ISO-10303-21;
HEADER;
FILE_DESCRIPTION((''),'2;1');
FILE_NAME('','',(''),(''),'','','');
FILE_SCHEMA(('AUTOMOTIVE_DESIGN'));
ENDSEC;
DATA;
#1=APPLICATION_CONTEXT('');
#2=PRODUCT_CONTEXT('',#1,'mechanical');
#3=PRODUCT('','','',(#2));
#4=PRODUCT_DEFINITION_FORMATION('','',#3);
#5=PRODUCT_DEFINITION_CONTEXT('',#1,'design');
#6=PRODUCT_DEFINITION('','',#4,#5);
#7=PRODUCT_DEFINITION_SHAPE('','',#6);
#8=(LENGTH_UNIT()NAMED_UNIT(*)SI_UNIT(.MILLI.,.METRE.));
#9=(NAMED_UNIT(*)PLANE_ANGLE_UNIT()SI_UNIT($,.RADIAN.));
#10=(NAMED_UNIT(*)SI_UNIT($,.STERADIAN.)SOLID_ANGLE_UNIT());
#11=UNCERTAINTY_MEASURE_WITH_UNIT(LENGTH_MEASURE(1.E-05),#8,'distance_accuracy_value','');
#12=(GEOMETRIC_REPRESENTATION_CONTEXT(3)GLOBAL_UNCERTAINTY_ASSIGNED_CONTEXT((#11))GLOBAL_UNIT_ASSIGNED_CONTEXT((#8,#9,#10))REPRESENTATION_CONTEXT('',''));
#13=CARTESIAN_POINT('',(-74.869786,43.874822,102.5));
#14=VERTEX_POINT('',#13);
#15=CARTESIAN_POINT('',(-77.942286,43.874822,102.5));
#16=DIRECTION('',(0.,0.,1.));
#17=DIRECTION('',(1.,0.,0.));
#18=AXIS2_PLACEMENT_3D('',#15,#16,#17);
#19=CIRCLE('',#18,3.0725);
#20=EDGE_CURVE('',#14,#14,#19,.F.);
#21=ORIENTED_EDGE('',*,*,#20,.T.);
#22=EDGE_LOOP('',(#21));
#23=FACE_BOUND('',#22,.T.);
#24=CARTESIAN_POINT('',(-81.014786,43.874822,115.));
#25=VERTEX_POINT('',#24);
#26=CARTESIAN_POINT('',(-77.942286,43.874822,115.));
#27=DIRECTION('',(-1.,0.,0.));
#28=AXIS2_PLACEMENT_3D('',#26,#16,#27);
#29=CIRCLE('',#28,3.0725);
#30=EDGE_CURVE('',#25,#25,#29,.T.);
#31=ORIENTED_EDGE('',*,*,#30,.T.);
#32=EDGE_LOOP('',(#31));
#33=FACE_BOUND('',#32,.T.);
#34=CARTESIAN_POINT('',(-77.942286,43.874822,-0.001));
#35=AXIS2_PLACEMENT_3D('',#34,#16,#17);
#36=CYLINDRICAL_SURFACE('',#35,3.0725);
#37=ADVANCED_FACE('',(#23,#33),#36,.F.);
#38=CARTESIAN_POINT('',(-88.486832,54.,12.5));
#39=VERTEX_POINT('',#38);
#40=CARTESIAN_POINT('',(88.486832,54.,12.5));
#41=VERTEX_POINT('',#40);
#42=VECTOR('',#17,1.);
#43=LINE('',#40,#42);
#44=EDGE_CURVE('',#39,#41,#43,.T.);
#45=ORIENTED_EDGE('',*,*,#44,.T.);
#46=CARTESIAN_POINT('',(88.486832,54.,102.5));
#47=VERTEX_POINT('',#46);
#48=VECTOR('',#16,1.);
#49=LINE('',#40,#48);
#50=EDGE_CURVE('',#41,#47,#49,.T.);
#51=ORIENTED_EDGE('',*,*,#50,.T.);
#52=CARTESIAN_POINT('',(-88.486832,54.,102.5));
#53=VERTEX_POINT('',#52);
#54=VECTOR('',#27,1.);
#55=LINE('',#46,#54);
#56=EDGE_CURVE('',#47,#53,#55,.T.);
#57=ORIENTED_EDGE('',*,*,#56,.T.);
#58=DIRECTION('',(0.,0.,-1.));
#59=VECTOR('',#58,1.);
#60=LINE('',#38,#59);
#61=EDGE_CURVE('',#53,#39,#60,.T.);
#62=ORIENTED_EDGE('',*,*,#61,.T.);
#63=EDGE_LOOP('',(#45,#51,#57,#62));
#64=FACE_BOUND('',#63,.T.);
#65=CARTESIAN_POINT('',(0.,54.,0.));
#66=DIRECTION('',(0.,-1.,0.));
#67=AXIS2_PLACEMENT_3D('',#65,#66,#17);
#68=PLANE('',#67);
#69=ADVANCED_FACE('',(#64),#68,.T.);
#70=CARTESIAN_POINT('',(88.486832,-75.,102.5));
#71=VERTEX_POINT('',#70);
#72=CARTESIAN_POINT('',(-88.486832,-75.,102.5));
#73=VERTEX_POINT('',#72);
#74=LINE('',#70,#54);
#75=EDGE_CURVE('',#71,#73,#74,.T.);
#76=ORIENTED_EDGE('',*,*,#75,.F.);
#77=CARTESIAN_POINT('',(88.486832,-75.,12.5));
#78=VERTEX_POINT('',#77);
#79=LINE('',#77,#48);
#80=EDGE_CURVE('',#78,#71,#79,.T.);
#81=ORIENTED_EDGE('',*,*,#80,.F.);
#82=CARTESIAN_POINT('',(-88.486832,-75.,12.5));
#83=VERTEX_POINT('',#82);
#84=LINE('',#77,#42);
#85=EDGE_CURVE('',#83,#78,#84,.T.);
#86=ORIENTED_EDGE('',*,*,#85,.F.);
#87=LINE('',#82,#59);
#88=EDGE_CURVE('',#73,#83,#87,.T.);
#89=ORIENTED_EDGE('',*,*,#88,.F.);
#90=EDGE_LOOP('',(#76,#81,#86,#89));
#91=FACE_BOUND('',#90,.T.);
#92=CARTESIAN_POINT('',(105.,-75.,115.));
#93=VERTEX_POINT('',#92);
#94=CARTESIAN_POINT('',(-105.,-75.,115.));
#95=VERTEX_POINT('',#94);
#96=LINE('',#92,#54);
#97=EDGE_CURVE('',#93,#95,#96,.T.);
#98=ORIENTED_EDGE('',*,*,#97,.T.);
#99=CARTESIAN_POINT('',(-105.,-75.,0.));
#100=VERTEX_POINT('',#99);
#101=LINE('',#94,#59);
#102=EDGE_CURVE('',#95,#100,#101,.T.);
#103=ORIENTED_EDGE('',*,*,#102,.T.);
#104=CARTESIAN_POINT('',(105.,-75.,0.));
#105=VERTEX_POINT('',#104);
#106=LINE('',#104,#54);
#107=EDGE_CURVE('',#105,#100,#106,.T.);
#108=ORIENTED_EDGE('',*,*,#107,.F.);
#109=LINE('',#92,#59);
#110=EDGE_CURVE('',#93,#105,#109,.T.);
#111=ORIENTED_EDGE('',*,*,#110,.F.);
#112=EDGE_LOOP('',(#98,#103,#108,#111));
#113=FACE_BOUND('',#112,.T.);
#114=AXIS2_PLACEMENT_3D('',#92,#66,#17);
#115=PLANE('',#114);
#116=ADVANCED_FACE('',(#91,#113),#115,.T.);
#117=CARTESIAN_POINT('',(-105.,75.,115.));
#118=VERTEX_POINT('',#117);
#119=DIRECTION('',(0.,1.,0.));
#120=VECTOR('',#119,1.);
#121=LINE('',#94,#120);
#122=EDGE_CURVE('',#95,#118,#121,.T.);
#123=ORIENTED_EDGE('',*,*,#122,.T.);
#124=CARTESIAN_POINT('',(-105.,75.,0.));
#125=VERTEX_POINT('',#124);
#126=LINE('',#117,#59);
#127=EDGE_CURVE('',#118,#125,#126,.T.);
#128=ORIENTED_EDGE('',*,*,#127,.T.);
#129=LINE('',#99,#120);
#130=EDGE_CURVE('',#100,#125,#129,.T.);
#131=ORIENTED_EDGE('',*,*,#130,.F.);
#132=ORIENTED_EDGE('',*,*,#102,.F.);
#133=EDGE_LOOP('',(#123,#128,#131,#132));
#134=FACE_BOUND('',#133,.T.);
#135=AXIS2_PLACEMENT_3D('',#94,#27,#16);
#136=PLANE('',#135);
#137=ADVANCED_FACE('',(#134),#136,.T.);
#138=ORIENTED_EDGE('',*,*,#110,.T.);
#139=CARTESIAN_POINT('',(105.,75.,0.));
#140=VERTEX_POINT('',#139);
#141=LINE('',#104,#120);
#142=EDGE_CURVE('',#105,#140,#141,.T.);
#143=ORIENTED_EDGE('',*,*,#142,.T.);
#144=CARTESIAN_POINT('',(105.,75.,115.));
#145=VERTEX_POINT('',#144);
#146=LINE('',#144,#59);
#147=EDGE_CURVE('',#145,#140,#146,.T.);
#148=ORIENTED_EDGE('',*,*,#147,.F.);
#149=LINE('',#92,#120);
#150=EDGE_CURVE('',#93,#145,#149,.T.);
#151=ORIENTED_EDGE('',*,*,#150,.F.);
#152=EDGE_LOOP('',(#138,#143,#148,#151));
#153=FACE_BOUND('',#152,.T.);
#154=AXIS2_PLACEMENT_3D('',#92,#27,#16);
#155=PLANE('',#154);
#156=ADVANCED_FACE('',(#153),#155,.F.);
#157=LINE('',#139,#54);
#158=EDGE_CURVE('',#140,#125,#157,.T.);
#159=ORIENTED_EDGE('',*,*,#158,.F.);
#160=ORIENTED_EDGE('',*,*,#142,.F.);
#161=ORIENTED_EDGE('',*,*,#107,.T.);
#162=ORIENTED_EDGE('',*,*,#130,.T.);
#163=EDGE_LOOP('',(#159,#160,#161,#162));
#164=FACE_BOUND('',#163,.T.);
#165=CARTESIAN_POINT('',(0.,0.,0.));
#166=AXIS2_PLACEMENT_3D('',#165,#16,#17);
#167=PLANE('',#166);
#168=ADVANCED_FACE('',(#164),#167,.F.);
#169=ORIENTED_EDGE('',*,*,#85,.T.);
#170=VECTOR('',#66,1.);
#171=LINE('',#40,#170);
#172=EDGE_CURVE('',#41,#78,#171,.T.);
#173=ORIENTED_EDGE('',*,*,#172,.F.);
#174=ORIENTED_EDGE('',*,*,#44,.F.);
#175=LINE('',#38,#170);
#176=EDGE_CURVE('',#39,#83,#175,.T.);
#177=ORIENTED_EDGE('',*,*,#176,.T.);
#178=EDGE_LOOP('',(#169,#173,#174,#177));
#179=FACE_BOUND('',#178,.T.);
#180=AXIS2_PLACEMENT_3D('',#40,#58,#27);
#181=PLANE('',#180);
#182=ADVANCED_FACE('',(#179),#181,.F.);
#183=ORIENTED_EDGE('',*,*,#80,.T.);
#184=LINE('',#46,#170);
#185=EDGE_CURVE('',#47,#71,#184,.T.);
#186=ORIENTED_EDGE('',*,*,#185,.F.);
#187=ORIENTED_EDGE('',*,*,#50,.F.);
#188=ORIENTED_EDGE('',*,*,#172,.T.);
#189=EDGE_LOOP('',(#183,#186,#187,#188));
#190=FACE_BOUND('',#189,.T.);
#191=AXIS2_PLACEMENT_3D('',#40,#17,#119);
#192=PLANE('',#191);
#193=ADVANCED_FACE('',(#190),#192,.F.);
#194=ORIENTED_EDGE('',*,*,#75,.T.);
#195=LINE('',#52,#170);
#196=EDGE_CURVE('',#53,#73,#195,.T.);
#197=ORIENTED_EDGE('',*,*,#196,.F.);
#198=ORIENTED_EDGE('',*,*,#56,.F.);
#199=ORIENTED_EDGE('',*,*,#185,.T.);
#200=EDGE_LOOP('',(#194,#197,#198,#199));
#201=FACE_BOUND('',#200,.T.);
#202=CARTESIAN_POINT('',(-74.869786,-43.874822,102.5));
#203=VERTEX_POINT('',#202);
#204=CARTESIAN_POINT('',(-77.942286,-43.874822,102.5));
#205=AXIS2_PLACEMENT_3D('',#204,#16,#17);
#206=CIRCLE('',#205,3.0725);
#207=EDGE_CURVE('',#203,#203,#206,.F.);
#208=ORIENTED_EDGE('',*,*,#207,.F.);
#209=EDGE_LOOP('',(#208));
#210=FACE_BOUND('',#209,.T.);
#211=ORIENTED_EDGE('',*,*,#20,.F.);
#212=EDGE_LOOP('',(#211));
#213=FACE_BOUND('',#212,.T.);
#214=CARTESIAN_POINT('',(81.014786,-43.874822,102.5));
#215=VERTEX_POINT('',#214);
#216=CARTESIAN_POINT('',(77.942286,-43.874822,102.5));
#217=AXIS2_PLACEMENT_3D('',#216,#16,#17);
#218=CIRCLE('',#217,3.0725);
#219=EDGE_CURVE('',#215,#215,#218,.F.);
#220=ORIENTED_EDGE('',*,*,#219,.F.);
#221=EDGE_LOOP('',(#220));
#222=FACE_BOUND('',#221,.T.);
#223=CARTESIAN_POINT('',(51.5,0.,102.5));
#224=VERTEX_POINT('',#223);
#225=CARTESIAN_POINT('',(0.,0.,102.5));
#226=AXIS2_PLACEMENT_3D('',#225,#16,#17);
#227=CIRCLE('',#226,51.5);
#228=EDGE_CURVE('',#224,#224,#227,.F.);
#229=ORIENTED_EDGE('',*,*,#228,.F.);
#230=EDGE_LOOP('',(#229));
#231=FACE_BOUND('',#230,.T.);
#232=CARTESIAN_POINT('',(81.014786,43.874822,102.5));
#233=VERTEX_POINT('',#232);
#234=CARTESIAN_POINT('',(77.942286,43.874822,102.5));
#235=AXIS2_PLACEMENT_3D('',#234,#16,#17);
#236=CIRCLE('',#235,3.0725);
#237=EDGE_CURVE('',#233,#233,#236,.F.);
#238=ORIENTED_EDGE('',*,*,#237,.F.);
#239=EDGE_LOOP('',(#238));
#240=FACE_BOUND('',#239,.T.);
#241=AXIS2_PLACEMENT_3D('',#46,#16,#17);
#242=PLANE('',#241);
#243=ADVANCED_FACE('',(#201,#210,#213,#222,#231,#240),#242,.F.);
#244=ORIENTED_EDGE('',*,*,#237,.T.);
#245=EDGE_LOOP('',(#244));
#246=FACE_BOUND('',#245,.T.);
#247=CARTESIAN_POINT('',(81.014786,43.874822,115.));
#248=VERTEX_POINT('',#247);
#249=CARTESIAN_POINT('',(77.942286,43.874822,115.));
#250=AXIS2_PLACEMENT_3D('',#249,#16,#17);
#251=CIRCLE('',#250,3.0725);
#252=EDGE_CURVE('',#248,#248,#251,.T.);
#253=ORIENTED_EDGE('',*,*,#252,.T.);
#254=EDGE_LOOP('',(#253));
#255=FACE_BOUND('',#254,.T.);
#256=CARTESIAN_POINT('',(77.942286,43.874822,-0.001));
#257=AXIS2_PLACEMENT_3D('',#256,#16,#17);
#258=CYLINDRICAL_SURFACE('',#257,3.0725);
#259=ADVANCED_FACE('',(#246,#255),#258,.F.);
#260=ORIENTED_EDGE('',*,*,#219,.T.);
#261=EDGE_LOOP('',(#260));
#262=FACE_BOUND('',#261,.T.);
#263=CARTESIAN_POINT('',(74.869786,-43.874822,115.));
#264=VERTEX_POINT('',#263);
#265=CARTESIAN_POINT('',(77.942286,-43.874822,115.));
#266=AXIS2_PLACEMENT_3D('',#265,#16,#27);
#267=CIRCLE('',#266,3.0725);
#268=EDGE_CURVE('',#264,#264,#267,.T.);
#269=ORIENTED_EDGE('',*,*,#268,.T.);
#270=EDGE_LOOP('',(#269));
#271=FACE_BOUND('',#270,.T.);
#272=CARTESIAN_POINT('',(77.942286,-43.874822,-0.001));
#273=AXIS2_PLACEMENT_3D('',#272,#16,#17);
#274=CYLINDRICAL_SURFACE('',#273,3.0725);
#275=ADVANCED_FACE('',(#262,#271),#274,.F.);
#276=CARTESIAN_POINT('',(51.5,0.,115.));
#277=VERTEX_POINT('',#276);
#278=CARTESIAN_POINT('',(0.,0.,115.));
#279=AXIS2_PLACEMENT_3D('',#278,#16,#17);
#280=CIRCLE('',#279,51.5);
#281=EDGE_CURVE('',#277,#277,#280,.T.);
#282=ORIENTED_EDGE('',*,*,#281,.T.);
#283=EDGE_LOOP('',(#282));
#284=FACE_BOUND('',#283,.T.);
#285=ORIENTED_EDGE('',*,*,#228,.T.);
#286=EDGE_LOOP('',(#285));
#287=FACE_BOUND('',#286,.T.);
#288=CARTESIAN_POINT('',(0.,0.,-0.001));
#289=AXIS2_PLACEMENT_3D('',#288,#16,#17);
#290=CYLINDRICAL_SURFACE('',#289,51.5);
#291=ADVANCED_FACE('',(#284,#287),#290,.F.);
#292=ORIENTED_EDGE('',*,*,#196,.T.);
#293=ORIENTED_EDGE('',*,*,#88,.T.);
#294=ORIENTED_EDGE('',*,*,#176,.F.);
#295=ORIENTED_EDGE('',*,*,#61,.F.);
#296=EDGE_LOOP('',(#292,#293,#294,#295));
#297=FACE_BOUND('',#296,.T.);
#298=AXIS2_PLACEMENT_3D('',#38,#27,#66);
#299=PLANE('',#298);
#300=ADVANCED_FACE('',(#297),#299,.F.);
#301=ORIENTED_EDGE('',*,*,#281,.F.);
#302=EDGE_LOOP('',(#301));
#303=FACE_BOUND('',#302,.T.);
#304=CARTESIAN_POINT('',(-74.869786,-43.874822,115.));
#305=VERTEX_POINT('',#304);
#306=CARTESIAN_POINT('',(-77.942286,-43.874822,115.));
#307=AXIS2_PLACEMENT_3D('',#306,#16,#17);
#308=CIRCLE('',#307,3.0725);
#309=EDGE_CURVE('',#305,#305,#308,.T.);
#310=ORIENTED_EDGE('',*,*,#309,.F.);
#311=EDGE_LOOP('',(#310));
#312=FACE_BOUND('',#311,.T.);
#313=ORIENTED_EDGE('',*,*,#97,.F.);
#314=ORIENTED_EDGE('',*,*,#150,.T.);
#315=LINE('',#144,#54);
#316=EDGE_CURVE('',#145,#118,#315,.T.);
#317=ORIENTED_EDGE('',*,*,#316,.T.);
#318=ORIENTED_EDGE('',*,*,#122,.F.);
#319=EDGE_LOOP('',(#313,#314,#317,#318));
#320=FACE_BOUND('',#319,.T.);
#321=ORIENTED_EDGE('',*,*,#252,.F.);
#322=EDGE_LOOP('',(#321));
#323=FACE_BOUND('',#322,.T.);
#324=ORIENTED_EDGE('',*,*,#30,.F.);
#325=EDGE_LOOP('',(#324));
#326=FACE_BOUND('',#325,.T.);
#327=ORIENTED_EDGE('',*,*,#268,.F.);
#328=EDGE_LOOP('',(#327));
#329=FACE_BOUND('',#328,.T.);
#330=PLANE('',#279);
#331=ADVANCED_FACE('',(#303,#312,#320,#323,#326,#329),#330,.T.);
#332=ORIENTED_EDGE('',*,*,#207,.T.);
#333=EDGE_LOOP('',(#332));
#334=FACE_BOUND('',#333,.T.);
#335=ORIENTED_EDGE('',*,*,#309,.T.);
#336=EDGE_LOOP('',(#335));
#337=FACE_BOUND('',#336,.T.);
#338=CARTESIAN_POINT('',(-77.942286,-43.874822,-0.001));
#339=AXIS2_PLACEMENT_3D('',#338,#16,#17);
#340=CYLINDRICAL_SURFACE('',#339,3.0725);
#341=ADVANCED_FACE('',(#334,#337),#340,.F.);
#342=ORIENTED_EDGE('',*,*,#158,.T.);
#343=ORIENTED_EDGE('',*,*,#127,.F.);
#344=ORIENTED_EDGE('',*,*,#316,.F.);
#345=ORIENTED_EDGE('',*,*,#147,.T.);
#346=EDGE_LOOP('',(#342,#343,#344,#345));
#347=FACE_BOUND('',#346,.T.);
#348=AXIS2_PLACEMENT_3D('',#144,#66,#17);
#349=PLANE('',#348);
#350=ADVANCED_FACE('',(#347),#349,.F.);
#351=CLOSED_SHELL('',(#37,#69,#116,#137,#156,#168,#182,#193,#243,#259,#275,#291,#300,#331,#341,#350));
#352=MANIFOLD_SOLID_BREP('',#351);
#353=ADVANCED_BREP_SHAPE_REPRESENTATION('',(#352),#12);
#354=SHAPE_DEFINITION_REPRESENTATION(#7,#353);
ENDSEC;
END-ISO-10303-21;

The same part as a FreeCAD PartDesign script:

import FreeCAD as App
import Part
import Sketcher

V = App.Vector


def add_polygon(sketch, points):
    """Adds a closed chain of lines whose ends are joined by coincident constraints."""
    first, n = sketch.GeometryCount, len(points)
    for a, b in zip(points, points[1:] + points[:1]):
        sketch.addGeometry(Part.LineSegment(App.Vector(*a, 0), App.Vector(*b, 0)), False)
    for i in range(n):
        sketch.addConstraint(Sketcher.Constraint("Coincident", first + i, 2, first + (i + 1) % n, 1))

doc = App.newDocument("Part")
body = doc.addObject("PartDesign::Body", "Body")

# Sketch on XY plane
sketch1 = body.newObject("Sketcher::SketchObject", "Sketch")
sketch1.AttachmentSupport = (doc.getObject("XY_Plane"), [""])
sketch1.MapMode = "FlatFace"
add_polygon(sketch1, [(-105, 75), (-105, -75), (105, -75), (105, 75)])  # lines 0-3
sketch1.addConstraint([
    Sketcher.Constraint("Vertical", 0),
    Sketcher.Constraint("Horizontal", 1),
    Sketcher.Constraint("Vertical", 2),
    Sketcher.Constraint("Horizontal", 3),
    Sketcher.Constraint("Symmetric", 0, 2, 2, 2, -1, 1),
    Sketcher.Constraint("DistanceX", 1, 1, 1, 2, 210.0),
    Sketcher.Constraint("DistanceY", 0, 2, 0, 1, 150.0),
])
pad1 = body.newObject("PartDesign::Pad", "Pad")
pad1.Profile = sketch1
pad1.Length = 115

# Sketch on XZ plane
sketch2 = body.newObject("Sketcher::SketchObject", "Sketch001")
sketch2.AttachmentSupport = (doc.getObject("XZ_Plane"), [""])
sketch2.MapMode = "FlatFace"
sketch2.AttachmentOffset = App.Placement(V(0, 0, 75), App.Rotation())
add_polygon(sketch2, [(-88, 102), (-88, 12), (88, 12), (88, 102)])  # lines 0-3
sketch2.addConstraint([
    Sketcher.Constraint("Vertical", 0),
    Sketcher.Constraint("Horizontal", 1),
    Sketcher.Constraint("Vertical", 2),
    Sketcher.Constraint("Horizontal", 3),
    Sketcher.Constraint("DistanceY", 0, 2, 0, 1, 90.0),
    Sketcher.Constraint("DistanceY", -1, 1, 0, 2, 12.5),
    Sketcher.Constraint("DistanceX", 1, 1, 1, 2, 176.973663),
    Sketcher.Constraint("DistanceX", 0, 2, -1, 1, 88.486832),
])
pocket1 = body.newObject("PartDesign::Pocket", "Pocket")
pocket1.Profile = sketch2
pocket1.Length = 129

# Sketch on XY plane
sketch3 = body.newObject("Sketcher::SketchObject", "Sketch002")
sketch3.AttachmentSupport = (doc.getObject("XY_Plane"), [""])
sketch3.MapMode = "FlatFace"
sketch3.AttachmentOffset = App.Placement(V(0, 0, 115), App.Rotation())
sketch3.addGeometry(Part.Circle(V(77.9, 43.9, 0), V(0, 0, 1), 3.1), False)
sketch3.addConstraint([
    Sketcher.Constraint("Diameter", 0, 6.145),
    Sketcher.Constraint("DistanceY", -1, 1, 0, 3, 43.874822),
    Sketcher.Constraint("DistanceX", -1, 1, 0, 3, 77.942286),
])
pocket2 = body.newObject("PartDesign::Pocket", "Pocket001")
pocket2.Profile = sketch3
pocket2.Type = "UpToFirst"

# Sketch on XY plane
sketch4 = body.newObject("Sketcher::SketchObject", "Sketch003")
sketch4.AttachmentSupport = (doc.getObject("XY_Plane"), [""])
sketch4.MapMode = "FlatFace"
sketch4.AttachmentOffset = App.Placement(V(0, 0, 115), App.Rotation())
sketch4.addGeometry(Part.Circle(V(-77.9, 43.9, 0), V(0, 0, 1), 3.1), False)
sketch4.addConstraint([
    Sketcher.Constraint("Diameter", 0, 6.145),
    Sketcher.Constraint("DistanceY", -1, 1, 0, 3, 43.874822),
    Sketcher.Constraint("DistanceX", 0, 3, -1, 1, 77.942286),
])
pocket3 = body.newObject("PartDesign::Pocket", "Pocket002")
pocket3.Profile = sketch4
pocket3.Type = "UpToFirst"

# Sketch on XY plane
sketch5 = body.newObject("Sketcher::SketchObject", "Sketch004")
sketch5.AttachmentSupport = (doc.getObject("XY_Plane"), [""])
sketch5.MapMode = "FlatFace"
sketch5.AttachmentOffset = App.Placement(V(0, 0, 115), App.Rotation())
sketch5.addGeometry(Part.Circle(V(-77.9, -43.9, 0), V(0, 0, 1), 3.1), False)
sketch5.addConstraint([
    Sketcher.Constraint("Diameter", 0, 6.145),
    Sketcher.Constraint("DistanceY", 0, 3, -1, 1, 43.874822),
    Sketcher.Constraint("DistanceX", 0, 3, -1, 1, 77.942286),
])
pocket4 = body.newObject("PartDesign::Pocket", "Pocket003")
pocket4.Profile = sketch5
pocket4.Type = "UpToFirst"

# Sketch on XY plane
sketch6 = body.newObject("Sketcher::SketchObject", "Sketch005")
sketch6.AttachmentSupport = (doc.getObject("XY_Plane"), [""])
sketch6.MapMode = "FlatFace"
sketch6.AttachmentOffset = App.Placement(V(0, 0, 115), App.Rotation())
sketch6.addGeometry(Part.Circle(V(77.9, -43.9, 0), V(0, 0, 1), 3.1), False)
sketch6.addConstraint([
    Sketcher.Constraint("Diameter", 0, 6.145),
    Sketcher.Constraint("DistanceY", 0, 3, -1, 1, 43.874822),
    Sketcher.Constraint("DistanceX", -1, 1, 0, 3, 77.942286),
])
pocket5 = body.newObject("PartDesign::Pocket", "Pocket004")
pocket5.Profile = sketch6
pocket5.Type = "UpToFirst"

# Sketch on XY plane
sketch7 = body.newObject("Sketcher::SketchObject", "Sketch006")
sketch7.AttachmentSupport = (doc.getObject("XY_Plane"), [""])
sketch7.MapMode = "FlatFace"
sketch7.AttachmentOffset = App.Placement(V(0, 0, 115), App.Rotation())
sketch7.addGeometry(Part.Circle(V(0, 0, 0), V(0, 0, 1), 52), False)
sketch7.addConstraint([
    Sketcher.Constraint("Coincident", 0, 3, -1, 1),
    Sketcher.Constraint("Diameter", 0, 103.0),
])
pocket6 = body.newObject("PartDesign::Pocket", "Pocket005")
pocket6.Profile = sketch7
pocket6.Type = "UpToFirst"

doc.recompute()
